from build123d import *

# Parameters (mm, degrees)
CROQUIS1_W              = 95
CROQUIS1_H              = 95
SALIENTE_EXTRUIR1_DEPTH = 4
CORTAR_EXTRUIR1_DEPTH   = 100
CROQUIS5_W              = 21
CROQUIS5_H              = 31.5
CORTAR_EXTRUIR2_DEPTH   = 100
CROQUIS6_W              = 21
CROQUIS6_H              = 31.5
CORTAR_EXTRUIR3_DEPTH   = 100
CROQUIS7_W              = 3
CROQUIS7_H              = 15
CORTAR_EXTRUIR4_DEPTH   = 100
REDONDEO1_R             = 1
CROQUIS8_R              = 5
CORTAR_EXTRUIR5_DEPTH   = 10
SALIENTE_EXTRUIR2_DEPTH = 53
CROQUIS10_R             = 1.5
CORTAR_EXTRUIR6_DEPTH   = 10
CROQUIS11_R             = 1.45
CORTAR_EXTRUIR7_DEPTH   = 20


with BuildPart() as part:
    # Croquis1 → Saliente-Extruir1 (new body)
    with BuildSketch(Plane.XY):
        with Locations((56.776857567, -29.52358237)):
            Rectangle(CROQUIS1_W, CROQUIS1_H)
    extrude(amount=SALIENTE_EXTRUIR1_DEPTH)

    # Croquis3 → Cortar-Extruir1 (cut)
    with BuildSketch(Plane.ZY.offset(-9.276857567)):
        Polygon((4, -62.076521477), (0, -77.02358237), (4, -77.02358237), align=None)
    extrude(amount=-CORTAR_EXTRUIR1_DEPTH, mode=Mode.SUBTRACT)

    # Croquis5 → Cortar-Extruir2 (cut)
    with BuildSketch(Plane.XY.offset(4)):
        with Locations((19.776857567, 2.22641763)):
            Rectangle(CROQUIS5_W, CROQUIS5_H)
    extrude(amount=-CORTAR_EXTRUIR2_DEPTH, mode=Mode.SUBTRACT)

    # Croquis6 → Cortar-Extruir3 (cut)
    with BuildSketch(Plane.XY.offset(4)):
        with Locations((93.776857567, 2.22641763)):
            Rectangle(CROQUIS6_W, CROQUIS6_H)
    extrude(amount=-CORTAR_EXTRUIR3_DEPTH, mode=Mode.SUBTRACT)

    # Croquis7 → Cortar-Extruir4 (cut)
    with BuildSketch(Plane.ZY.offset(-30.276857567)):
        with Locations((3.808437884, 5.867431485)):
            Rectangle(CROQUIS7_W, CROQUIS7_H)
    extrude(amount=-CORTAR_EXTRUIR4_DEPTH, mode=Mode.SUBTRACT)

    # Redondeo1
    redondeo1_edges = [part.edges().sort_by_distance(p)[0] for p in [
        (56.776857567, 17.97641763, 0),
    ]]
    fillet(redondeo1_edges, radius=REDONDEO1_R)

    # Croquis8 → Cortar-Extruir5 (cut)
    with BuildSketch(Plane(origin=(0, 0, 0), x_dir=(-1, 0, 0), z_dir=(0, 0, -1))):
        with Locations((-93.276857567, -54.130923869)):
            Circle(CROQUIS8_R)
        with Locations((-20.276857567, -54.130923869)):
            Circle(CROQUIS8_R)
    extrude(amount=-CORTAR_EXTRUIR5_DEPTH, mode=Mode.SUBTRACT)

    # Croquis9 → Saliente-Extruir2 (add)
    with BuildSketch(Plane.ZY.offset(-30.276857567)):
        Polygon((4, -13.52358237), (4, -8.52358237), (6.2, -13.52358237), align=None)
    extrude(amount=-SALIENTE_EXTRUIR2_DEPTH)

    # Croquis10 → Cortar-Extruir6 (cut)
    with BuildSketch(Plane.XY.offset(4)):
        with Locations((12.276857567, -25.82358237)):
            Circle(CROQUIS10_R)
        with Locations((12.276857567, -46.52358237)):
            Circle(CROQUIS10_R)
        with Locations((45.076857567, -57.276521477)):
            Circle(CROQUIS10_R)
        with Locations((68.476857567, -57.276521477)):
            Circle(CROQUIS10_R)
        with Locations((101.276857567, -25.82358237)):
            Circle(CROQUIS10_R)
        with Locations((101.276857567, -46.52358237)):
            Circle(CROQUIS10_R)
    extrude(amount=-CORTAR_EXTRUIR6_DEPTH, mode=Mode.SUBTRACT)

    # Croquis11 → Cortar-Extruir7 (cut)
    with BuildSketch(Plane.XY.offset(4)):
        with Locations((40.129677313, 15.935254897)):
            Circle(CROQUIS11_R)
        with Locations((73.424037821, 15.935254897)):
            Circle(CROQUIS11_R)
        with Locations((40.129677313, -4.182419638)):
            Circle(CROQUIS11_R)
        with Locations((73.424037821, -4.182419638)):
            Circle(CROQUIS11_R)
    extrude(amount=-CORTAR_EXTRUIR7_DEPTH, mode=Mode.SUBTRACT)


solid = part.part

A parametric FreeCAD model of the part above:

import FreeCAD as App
import Part
import Sketcher
from FreeCAD import Vector
Q = App.Units.Quantity


def edges_at(feature, points):
    """Names of the edges that pass closest to the given points."""
    edges = feature.Shape.Edges
    near = lambda p: min(range(len(edges)), key=lambda i: edges[i].distToShape(Part.Vertex(*p))[0])
    return sorted({f"Edge{near(p) + 1}" for p in points})


def add_polygon(sketch, points):
    """Adds a closed chain of lines whose ends are joined by coincident constraints."""
    first, n = sketch.GeometryCount, len(points)
    for a, b in zip(points, points[1:] + points[:1]):
        sketch.addGeometry(Part.LineSegment(App.Vector(*a, 0), App.Vector(*b, 0)), False)
    for i in range(n):
        sketch.addConstraint(Sketcher.Constraint("Coincident", first + i, 2, first + (i + 1) % n, 1))

doc = App.newDocument("Part")
params = doc.addObject("Spreadsheet::Sheet", "Params")
for row, (alias, value) in enumerate([
    ("sketch1_width", "95 mm"),
    ("pad1_length", "4 mm"),
    ("sketch2_height", "4 mm"),
    ("pocket1_length", "100 mm"),
    ("sketch3_width", "21 mm"),
    ("sketch3_height", "31.5 mm"),
    ("pocket2_length", "100 mm"),
    ("sketch4_width", "21 mm"),
    ("sketch4_height", "31.5 mm"),
    ("pocket3_length", "100 mm"),
    ("sketch5_width", "15 mm"),
    ("sketch5_height", "3 mm"),
    ("pocket4_length", "100 mm"),
    ("fillet_radius", "1 mm"),
    ("sketch6_diameter", "10 mm"),
    ("pocket5_length", "10 mm"),
    ("sketch7_width", "5 mm"),
    ("sketch7_height", "2.2 mm"),
    ("pad2_length", "53 mm"),
    ("sketch8_diameter", "3 mm"),
    ("pocket6_length", "10 mm"),
    ("sketch9_diameter", "2.9 mm"),
    ("pocket7_length", "20 mm"),
], start=1):
    params.set(f"A{row}", alias)
    params.set(f"B{row}", "=" + value)
    params.setAlias(f"B{row}", alias)

body = doc.addObject("PartDesign::Body", "Body")

sketch1 = body.newObject("Sketcher::SketchObject", "Sketch")
sketch1.AttachmentSupport = (doc.getObject("XY_Plane"), [""])
sketch1.MapMode = "FlatFace"
add_polygon(sketch1, [(9, 18), (9, -77), (104, -77), (104, 18)])
sketch1.addConstraint([
    Sketcher.Constraint("Vertical", 0),
    Sketcher.Constraint("Horizontal", 1),
    Sketcher.Constraint("Vertical", 2),
    Sketcher.Constraint("Horizontal", 3),
    Sketcher.Constraint("Equal", 3, 0),
    Sketcher.Constraint("DistanceX", 1, 1, 1, 2, Q("95 mm")),
    Sketcher.Constraint("DistanceX", -1, 1, 0, 2, Q("9.276858 mm")),
    Sketcher.Constraint("DistanceY", 0, 2, -1, 1, Q("77.023582 mm")),
])
sketch1.setExpression("Constraints[9]", "Params.sketch1_width")
pad1 = body.newObject("PartDesign::Pad", "Pad")
pad1.Profile = sketch1
pad1.setExpression("Length", "Params.pad1_length")

sketch2 = body.newObject("Sketcher::SketchObject", "Sketch001")
sketch2.AttachmentSupport = (doc.getObject("YZ_Plane"), [""])
sketch2.MapMode = "FlatFace"
sketch2.AttachmentOffset = App.Placement(Vector(0, 0, 9.276858), App.Rotation())
add_polygon(sketch2, [(-62.1, 4), (-77, 0), (-77, 4)])
sketch2.addConstraint([
    Sketcher.Constraint("Vertical", 1),
    Sketcher.Constraint("Horizontal", 2),
    Sketcher.Constraint("PointOnObject", 0, 2, -1),
    Sketcher.Constraint("DistanceY", 1, 1, 1, 2, Q("4 mm")),
    Sketcher.Constraint("DistanceX", 2, 1, 2, 2, Q("14.947061 mm")),
    Sketcher.Constraint("DistanceX", 2, 2, -1, 1, Q("62.076521 mm")),
])
sketch2.setExpression("Constraints[6]", "Params.sketch2_height")
pocket1 = body.newObject("PartDesign::Pocket", "Pocket")
pocket1.Profile = sketch2
pocket1.setExpression("Length", "Params.pocket1_length")
pocket1.Reversed = True

sketch3 = body.newObject("Sketcher::SketchObject", "Sketch002")
sketch3.AttachmentSupport = (doc.getObject("XY_Plane"), [""])
sketch3.MapMode = "FlatFace"
sketch3.AttachmentOffset = App.Placement(Vector(0, 0, 4), App.Rotation())
add_polygon(sketch3, [(9, 18), (9, -14), (30, -14), (30, 18)])
sketch3.addConstraint([
    Sketcher.Constraint("Vertical", 0),
    Sketcher.Constraint("Horizontal", 1),
    Sketcher.Constraint("Vertical", 2),
    Sketcher.Constraint("Horizontal", 3),
    Sketcher.Constraint("DistanceX", 1, 1, 1, 2, Q("21 mm")),
    Sketcher.Constraint("DistanceY", 0, 2, 0, 1, Q("31.5 mm")),
    Sketcher.Constraint("DistanceX", -1, 1, 0, 2, Q("9.276858 mm")),
    Sketcher.Constraint("DistanceY", 0, 2, -1, 1, Q("13.523582 mm")),
])
sketch3.setExpression("Constraints[8]", "Params.sketch3_width")
sketch3.setExpression("Constraints[9]", "Params.sketch3_height")
pocket2 = body.newObject("PartDesign::Pocket", "Pocket001")
pocket2.Profile = sketch3
pocket2.setExpression("Length", "Params.pocket2_length")

sketch4 = body.newObject("Sketcher::SketchObject", "Sketch003")
sketch4.AttachmentSupport = (doc.getObject("XY_Plane"), [""])
sketch4.MapMode = "FlatFace"
sketch4.AttachmentOffset = App.Placement(Vector(0, 0, 4), App.Rotation())
add_polygon(sketch4, [(83, 18), (83, -14), (104, -14), (104, 18)])
sketch4.addConstraint([
    Sketcher.Constraint("Vertical", 0),
    Sketcher.Constraint("Horizontal", 1),
    Sketcher.Constraint("Vertical", 2),
    Sketcher.Constraint("Horizontal", 3),
    Sketcher.Constraint("DistanceX", 1, 1, 1, 2, Q("21 mm")),
    Sketcher.Constraint("DistanceY", 0, 2, 0, 1, Q("31.5 mm")),
    Sketcher.Constraint("DistanceX", -1, 1, 0, 2, Q("83.276858 mm")),
    Sketcher.Constraint("DistanceY", 0, 2, -1, 1, Q("13.523582 mm")),
])
sketch4.setExpression("Constraints[8]", "Params.sketch4_width")
sketch4.setExpression("Constraints[9]", "Params.sketch4_height")
pocket3 = body.newObject("PartDesign::Pocket", "Pocket002")
pocket3.Profile = sketch4
pocket3.setExpression("Length", "Params.pocket3_length")

sketch5 = body.newObject("Sketcher::SketchObject", "Sketch004")
sketch5.AttachmentSupport = (doc.getObject("YZ_Plane"), [""])
sketch5.MapMode = "FlatFace"
sketch5.AttachmentOffset = App.Placement(Vector(0, 0, 30.276858), App.Rotation())
add_polygon(sketch5, [(13.4, 2.3), (-1.6, 2.3), (-1.6, 5.3), (13.4, 5.3)])
sketch5.addConstraint([
    Sketcher.Constraint("Horizontal", 0),
    Sketcher.Constraint("Vertical", 1),
    Sketcher.Constraint("Horizontal", 2),
    Sketcher.Constraint("Vertical", 3),
    Sketcher.Constraint("DistanceX", 0, 2, 0, 1, Q("15 mm")),
    Sketcher.Constraint("DistanceY", 1, 1, 1, 2, Q("3 mm")),
    Sketcher.Constraint("DistanceX", 0, 2, -1, 1, Q("1.632569 mm")),
    Sketcher.Constraint("DistanceY", -1, 1, 0, 2, Q("2.308438 mm")),
])
sketch5.setExpression("Constraints[8]", "Params.sketch5_width")
sketch5.setExpression("Constraints[9]", "Params.sketch5_height")
pocket4 = body.newObject("PartDesign::Pocket", "Pocket003")
pocket4.Profile = sketch5
pocket4.setExpression("Length", "Params.pocket4_length")
pocket4.Reversed = True
doc.recompute()

fillet = body.newObject("PartDesign::Fillet", "Fillet")
fillet.Base = (pocket4, edges_at(pocket4, [(56.777, 17.976, 0)]))
fillet.setExpression("Radius", "Params.fillet_radius")

sketch6 = body.newObject("Sketcher::SketchObject", "Sketch005")
sketch6.AttachmentSupport = (doc.getObject("XY_Plane"), [""])
sketch6.MapMode = "FlatFace"
sketch6.addGeometry([
    Part.Circle(Vector(93, -54, 0), Vector(0, 0, 1), 5),
    Part.Circle(Vector(20, -54, 0), Vector(0, 0, 1), 5),
], False)
sketch6.addConstraint([
    Sketcher.Constraint("Equal", 0, 1),
    Sketcher.Constraint("Horizontal", 0, 3, 1, 3),
    Sketcher.Constraint("Diameter", 0, Q("10 mm")),
    Sketcher.Constraint("DistanceX", 1, 3, 0, 3, Q("73 mm")),
    Sketcher.Constraint("DistanceX", -1, 1, 0, 3, Q("93.276858 mm")),
    Sketcher.Constraint("DistanceY", 0, 3, -1, 1, Q("54.130924 mm")),
])
sketch6.setExpression("Constraints[2]", "Params.sketch6_diameter")
pocket5 = body.newObject("PartDesign::Pocket", "Pocket004")
pocket5.Profile = sketch6
pocket5.setExpression("Length", "Params.pocket5_length")
pocket5.Reversed = True

sketch7 = body.newObject("Sketcher::SketchObject", "Sketch006")
sketch7.AttachmentSupport = (doc.getObject("YZ_Plane"), [""])
sketch7.MapMode = "FlatFace"
sketch7.AttachmentOffset = App.Placement(Vector(0, 0, 30.276858), App.Rotation())
add_polygon(sketch7, [(-8.5, 4), (-13.5, 4), (-13.5, 6.2)])
sketch7.addConstraint([
    Sketcher.Constraint("Horizontal", 0),
    Sketcher.Constraint("Vertical", 1),
    Sketcher.Constraint("DistanceX", 0, 2, 0, 1, Q("5 mm")),
    Sketcher.Constraint("DistanceY", 1, 1, 1, 2, Q("2.2 mm")),
    Sketcher.Constraint("DistanceY", -1, 1, 0, 2, Q("4 mm")),
    Sketcher.Constraint("DistanceX", 0, 2, -1, 1, Q("13.523582 mm")),
])
sketch7.setExpression("Constraints[5]", "Params.sketch7_width")
sketch7.setExpression("Constraints[6]", "Params.sketch7_height")
pad2 = body.newObject("PartDesign::Pad", "Pad001")
pad2.Profile = sketch7
pad2.setExpression("Length", "Params.pad2_length")

sketch8 = body.newObject("Sketcher::SketchObject", "Sketch007")
sketch8.AttachmentSupport = (doc.getObject("XY_Plane"), [""])
sketch8.MapMode = "FlatFace"
sketch8.AttachmentOffset = App.Placement(Vector(0, 0, 4), App.Rotation())
sketch8.addGeometry([
    Part.Circle(Vector(12.3, -25.8, 0), Vector(0, 0, 1), 1.5),
    Part.Circle(Vector(12.3, -46.5, 0), Vector(0, 0, 1), 1.5),
    Part.Circle(Vector(45.1, -57.3, 0), Vector(0, 0, 1), 1.5),
    Part.Circle(Vector(68.5, -57.3, 0), Vector(0, 0, 1), 1.5),
    Part.Circle(Vector(101.3, -25.8, 0), Vector(0, 0, 1), 1.5),
    Part.Circle(Vector(101.3, -46.5, 0), Vector(0, 0, 1), 1.5),
], False)
sketch8.addConstraint([
    Sketcher.Constraint("Equal", 0, 1),
    Sketcher.Constraint("Equal", 1, 2),
    Sketcher.Constraint("Equal", 2, 3),
    Sketcher.Constraint("Equal", 3, 4),
    Sketcher.Constraint("Equal", 4, 5),
    Sketcher.Constraint("Horizontal", 2, 3, 3, 3),
    Sketcher.Constraint("Horizontal", 0, 3, 4, 3),
    Sketcher.Constraint("Horizontal", 1, 3, 5, 3),
    Sketcher.Constraint("Vertical", 0, 3, 1, 3),
    Sketcher.Constraint("Vertical", 4, 3, 5, 3),
    Sketcher.Constraint("Diameter", 0, Q("3 mm")),
    Sketcher.Constraint("DistanceX", 0, 3, 4, 3, Q("89 mm")),
    Sketcher.Constraint("DistanceY", 1, 3, 0, 3, Q("20.7 mm")),
    Sketcher.Constraint("DistanceX", 1, 3, 2, 3, Q("32.8 mm")),
    Sketcher.Constraint("DistanceX", 2, 3, 3, 3, Q("23.4 mm")),
    Sketcher.Constraint("DistanceY", 2, 3, -1, 1, Q("57.276521 mm")),
    Sketcher.Constraint("DistanceY", 2, 3, 1, 3, Q("10.752939 mm")),
    Sketcher.Constraint("DistanceX", -1, 1, 0, 3, Q("12.276858 mm")),
])
sketch8.setExpression("Constraints[10]", "Params.sketch8_diameter")
pocket6 = body.newObject("PartDesign::Pocket", "Pocket005")
pocket6.Profile = sketch8
pocket6.setExpression("Length", "Params.pocket6_length")

sketch9 = body.newObject("Sketcher::SketchObject", "Sketch008")
sketch9.AttachmentSupport = (doc.getObject("XY_Plane"), [""])
sketch9.MapMode = "FlatFace"
sketch9.AttachmentOffset = App.Placement(Vector(0, 0, 4), App.Rotation())
sketch9.addGeometry([
    Part.Circle(Vector(40.1, 15.9, 0), Vector(0, 0, 1), 1.4),
    Part.Circle(Vector(73.4, 15.9, 0), Vector(0, 0, 1), 1.4),
    Part.Circle(Vector(40.1, -4.2, 0), Vector(0, 0, 1), 1.4),
    Part.Circle(Vector(73.4, -4.2, 0), Vector(0, 0, 1), 1.4),
], False)
sketch9.addConstraint([
    Sketcher.Constraint("Equal", 0, 1),
    Sketcher.Constraint("Equal", 1, 2),
    Sketcher.Constraint("Equal", 2, 3),
    Sketcher.Constraint("Horizontal", 0, 3, 1, 3),
    Sketcher.Constraint("Horizontal", 2, 3, 3, 3),
    Sketcher.Constraint("Vertical", 0, 3, 2, 3),
    Sketcher.Constraint("Vertical", 1, 3, 3, 3),
    Sketcher.Constraint("Diameter", 0, Q("2.9 mm")),
    Sketcher.Constraint("DistanceY", 2, 3, -1, 1, Q("4.18242 mm")),
    Sketcher.Constraint("DistanceX", 0, 3, 1, 3, Q("33.294361 mm")),
    Sketcher.Constraint("DistanceX", -1, 1, 0, 3, Q("40.129677 mm")),
    Sketcher.Constraint("DistanceY", -1, 1, 0, 3, Q("15.935255 mm")),
])
sketch9.setExpression("Constraints[7]", "Params.sketch9_diameter")
pocket7 = body.newObject("PartDesign::Pocket", "Pocket006")
pocket7.Profile = sketch9
pocket7.setExpression("Length", "Params.pocket7_length")

doc.recompute()
